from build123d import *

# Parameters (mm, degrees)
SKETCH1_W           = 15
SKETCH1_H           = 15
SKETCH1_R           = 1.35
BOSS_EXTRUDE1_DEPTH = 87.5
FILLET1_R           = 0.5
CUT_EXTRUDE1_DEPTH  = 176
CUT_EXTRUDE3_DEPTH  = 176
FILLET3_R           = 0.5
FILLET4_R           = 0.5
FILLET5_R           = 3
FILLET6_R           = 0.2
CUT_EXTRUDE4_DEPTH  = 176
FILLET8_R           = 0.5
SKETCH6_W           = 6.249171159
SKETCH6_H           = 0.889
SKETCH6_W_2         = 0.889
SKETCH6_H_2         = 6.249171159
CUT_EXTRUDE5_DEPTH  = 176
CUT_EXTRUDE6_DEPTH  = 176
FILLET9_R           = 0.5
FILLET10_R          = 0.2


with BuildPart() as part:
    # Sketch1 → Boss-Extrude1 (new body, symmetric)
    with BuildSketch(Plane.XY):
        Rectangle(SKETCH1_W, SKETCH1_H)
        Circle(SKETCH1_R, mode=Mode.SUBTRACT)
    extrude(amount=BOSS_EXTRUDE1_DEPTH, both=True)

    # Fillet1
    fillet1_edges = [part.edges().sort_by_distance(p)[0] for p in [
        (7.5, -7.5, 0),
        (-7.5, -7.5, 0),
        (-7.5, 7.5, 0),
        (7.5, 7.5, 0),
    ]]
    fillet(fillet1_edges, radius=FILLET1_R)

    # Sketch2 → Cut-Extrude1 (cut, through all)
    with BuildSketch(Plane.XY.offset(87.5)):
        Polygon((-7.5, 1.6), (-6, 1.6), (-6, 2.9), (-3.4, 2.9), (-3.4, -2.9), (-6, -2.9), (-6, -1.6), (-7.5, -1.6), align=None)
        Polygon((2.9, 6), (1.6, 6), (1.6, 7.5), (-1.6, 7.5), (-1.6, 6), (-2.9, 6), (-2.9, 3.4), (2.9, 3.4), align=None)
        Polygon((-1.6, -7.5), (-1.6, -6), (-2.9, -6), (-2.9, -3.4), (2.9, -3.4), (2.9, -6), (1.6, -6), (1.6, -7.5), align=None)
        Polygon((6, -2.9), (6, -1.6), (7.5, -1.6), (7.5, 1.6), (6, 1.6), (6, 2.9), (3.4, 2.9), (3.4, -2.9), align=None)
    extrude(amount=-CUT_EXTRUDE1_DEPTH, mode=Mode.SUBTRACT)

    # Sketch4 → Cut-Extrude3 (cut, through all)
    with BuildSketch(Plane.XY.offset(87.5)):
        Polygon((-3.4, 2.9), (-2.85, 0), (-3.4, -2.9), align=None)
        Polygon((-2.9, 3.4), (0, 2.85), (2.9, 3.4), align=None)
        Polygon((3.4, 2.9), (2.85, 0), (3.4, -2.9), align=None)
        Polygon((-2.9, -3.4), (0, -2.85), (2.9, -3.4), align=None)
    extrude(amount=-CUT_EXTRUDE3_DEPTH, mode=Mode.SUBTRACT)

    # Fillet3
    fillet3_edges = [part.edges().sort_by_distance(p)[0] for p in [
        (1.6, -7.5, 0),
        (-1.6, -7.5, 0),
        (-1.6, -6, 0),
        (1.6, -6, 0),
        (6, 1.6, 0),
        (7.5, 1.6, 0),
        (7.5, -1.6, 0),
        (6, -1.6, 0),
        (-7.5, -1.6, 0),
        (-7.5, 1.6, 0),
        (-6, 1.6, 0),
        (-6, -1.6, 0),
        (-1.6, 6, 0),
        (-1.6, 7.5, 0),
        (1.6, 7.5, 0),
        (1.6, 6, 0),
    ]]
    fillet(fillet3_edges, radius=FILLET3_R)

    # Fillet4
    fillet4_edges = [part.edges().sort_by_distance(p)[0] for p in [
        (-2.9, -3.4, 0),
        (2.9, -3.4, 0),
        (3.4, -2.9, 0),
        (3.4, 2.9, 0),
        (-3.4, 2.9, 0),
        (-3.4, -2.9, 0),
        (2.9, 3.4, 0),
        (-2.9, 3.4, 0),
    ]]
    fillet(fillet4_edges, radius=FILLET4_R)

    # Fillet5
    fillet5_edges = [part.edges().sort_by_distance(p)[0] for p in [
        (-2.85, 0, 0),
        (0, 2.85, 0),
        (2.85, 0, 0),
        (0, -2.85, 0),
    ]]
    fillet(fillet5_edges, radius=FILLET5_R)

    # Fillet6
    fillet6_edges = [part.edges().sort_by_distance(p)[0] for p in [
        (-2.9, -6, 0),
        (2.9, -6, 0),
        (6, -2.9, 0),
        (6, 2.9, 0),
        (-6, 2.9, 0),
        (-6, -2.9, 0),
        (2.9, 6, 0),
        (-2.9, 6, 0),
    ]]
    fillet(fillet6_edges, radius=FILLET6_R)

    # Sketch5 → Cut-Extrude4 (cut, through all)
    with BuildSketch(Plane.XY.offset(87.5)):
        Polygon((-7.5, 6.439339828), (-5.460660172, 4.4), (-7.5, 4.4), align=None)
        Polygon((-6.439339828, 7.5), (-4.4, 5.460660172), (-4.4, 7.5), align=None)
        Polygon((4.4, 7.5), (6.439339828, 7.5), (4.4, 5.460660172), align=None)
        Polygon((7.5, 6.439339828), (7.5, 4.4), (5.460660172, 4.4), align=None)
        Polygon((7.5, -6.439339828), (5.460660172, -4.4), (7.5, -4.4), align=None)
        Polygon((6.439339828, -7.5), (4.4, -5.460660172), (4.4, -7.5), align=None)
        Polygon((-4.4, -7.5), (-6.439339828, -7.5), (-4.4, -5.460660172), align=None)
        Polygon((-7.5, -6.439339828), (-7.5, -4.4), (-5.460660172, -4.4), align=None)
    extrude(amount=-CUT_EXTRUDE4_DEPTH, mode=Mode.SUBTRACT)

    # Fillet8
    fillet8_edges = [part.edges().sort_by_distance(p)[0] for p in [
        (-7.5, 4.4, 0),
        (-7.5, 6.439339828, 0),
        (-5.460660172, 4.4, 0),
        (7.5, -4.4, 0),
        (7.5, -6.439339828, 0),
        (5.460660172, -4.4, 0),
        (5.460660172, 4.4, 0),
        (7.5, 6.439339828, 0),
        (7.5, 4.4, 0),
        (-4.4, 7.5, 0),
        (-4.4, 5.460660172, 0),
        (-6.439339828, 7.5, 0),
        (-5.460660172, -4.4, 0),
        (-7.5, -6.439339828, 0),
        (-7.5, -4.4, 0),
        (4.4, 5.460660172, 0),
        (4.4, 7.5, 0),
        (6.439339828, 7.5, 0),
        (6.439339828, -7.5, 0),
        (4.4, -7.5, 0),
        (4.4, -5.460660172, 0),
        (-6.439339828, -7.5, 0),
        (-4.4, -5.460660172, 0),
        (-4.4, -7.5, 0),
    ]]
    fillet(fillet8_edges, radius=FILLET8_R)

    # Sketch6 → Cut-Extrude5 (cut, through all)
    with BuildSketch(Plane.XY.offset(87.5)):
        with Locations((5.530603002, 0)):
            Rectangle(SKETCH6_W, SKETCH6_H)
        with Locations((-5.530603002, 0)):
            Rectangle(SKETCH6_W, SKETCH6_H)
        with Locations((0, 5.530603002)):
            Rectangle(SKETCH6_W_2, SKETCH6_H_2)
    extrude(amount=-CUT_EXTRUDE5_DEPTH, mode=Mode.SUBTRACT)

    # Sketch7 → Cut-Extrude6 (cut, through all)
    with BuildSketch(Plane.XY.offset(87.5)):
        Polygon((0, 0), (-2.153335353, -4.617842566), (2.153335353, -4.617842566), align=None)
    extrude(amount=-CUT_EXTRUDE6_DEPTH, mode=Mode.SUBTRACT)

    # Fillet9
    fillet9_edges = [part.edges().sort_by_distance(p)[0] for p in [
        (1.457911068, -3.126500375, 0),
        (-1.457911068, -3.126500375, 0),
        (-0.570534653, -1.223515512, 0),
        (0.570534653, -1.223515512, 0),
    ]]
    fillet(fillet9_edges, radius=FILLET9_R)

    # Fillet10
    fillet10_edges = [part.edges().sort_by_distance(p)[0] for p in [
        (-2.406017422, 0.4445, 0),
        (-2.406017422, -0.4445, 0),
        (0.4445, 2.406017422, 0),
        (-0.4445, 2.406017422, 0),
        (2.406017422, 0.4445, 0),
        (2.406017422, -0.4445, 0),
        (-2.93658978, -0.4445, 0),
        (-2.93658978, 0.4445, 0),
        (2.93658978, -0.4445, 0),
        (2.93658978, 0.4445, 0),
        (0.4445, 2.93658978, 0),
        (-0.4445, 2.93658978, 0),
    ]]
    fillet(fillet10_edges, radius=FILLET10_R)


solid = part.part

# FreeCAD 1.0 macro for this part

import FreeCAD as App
import Part
import Sketcher
Q = App.Units.Quantity


def edges_at(feature, points):
    """Names of the edges that pass closest to the given points."""
    edges = feature.Shape.Edges
    near = lambda p: min(range(len(edges)), key=lambda i: edges[i].distToShape(Part.Vertex(*p))[0])
    return sorted({f"Edge{near(p) + 1}" for p in points})


def add_polygon(sketch, points):
    """Adds a closed chain of lines whose ends are joined by coincident constraints."""
    first, n = sketch.GeometryCount, len(points)
    for a, b in zip(points, points[1:] + points[:1]):
        sketch.addGeometry(Part.LineSegment(App.Vector(*a, 0), App.Vector(*b, 0)), False)
    for i in range(n):
        sketch.addConstraint(Sketcher.Constraint("Coincident", first + i, 2, first + (i + 1) % n, 1))

doc = App.newDocument("Part")
params = doc.addObject("Spreadsheet::Sheet", "Params")
for row, (alias, value) in enumerate([
    ("sketch1_diameter", "2.7 mm"),
    ("sketch1_width", "15 mm"),
    ("pad1_length", "175 mm"),
    ("fillet_radius", "0.5 mm"),
    ("sketch2_width", "1.5 mm"),
    ("sketch2_width2", "2.6 mm"),
    ("sketch2_width3", "1.3 mm"),
    ("sketch2_width4", "3.2 mm"),
    ("sketch3_width", "5.8 mm"),
    ("fillet2_radius", "0.5 mm"),
    ("fillet3_radius", "0.5 mm"),
    ("fillet4_radius", "3 mm"),
    ("fillet5_radius", "0.2 mm"),
    ("fillet6_radius", "0.5 mm"),
    ("fillet7_radius", "0.5 mm"),
    ("fillet8_radius", "0.2 mm"),
], start=1):
    params.set(f"A{row}", alias)
    params.set(f"B{row}", "=" + value)
    params.setAlias(f"B{row}", alias)

body = doc.addObject("PartDesign::Body", "Body")

sketch1 = doc.addObject("Sketcher::SketchObject", "Sketch")
body.addObject(sketch1)
sketch1.AttachmentSupport = (doc.XY_Plane, [""])
sketch1.MapMode = "FlatFace"
add_polygon(sketch1, [(-7.5, 7.5), (-7.5, -7.5), (7.5, -7.5), (7.5, 7.5)])
sketch1.addGeometry(Part.Circle(App.Vector(0, 0, 0), App.Vector(0, 0, 1), 1.4), False)
sketch1.addConstraint([
    Sketcher.Constraint("Vertical", 0),
    Sketcher.Constraint("Horizontal", 1),
    Sketcher.Constraint("Vertical", 2),
    Sketcher.Constraint("Horizontal", 3),
    Sketcher.Constraint("Coincident", 4, 3, -1, 1),
    Sketcher.Constraint("Symmetric", 0, 2, 2, 2, -1, 1),
    Sketcher.Constraint("Equal", 3, 0),
    Sketcher.Constraint("Diameter", 4, Q("2.7 mm")),
    Sketcher.Constraint("DistanceX", 1, 1, 1, 2, Q("15 mm")),
])
sketch1.setExpression("Constraints[11]", "Params.sketch1_diameter")
sketch1.setExpression("Constraints[12]", "Params.sketch1_width")
pad1 = doc.addObject("PartDesign::Pad", "Pad")
body.addObject(pad1)
pad1.Profile = sketch1
pad1.setExpression("Length", "Params.pad1_length")
pad1.Midplane = True
doc.recompute()

fillet = doc.addObject("PartDesign::Fillet", "Fillet")
body.addObject(fillet)
fillet.Base = (pad1, edges_at(pad1, [
    (7.5, -7.5, 0),
    (-7.5, -7.5, 0),
    (-7.5, 7.5, 0),
    (7.5, 7.5, 0),
]))
fillet.setExpression("Radius", "Params.fillet_radius")

sketch2 = doc.addObject("Sketcher::SketchObject", "Sketch001")
body.addObject(sketch2)
sketch2.AttachmentSupport = (doc.XY_Plane, [""])
sketch2.MapMode = "FlatFace"
sketch2.AttachmentOffset = App.Placement(App.Vector(0, 0, 87.5), App.Rotation())
add_polygon(sketch2, [(-6, 1.6), (-7.5, 1.6), (-7.5, -1.6), (-6, -1.6), (-6, -2.9), (-3.4, -2.9), (-3.4, 2.9), (-6, 2.9)])
add_polygon(sketch2, [(2.9, 6), (1.6, 6), (1.6, 7.5), (-1.6, 7.5), (-1.6, 6), (-2.9, 6), (-2.9, 3.4), (2.9, 3.4)])
add_polygon(sketch2, [(-1.6, -6), (-1.6, -7.5), (1.6, -7.5), (1.6, -6), (2.9, -6), (2.9, -3.4), (-2.9, -3.4), (-2.9, -6)])
add_polygon(sketch2, [(6, -2.9), (6, -1.6), (7.5, -1.6), (7.5, 1.6), (6, 1.6), (6, 2.9), (3.4, 2.9), (3.4, -2.9)])
sketch2.addConstraint([
    Sketcher.Constraint("Horizontal", 0),
    Sketcher.Constraint("Vertical", 1),
    Sketcher.Constraint("Horizontal", 2),
    Sketcher.Constraint("Vertical", 3),
    Sketcher.Constraint("Horizontal", 4),
    Sketcher.Constraint("Vertical", 5),
    Sketcher.Constraint("Horizontal", 6),
    Sketcher.Constraint("Vertical", 7),
    Sketcher.Constraint("Horizontal", 8),
    Sketcher.Constraint("Vertical", 9),
    Sketcher.Constraint("Horizontal", 10),
    Sketcher.Constraint("Vertical", 11),
    Sketcher.Constraint("Horizontal", 12),
    Sketcher.Constraint("Vertical", 13),
    Sketcher.Constraint("Horizontal", 14),
    Sketcher.Constraint("Vertical", 15),
    Sketcher.Constraint("Vertical", 16),
    Sketcher.Constraint("Horizontal", 17),
    Sketcher.Constraint("Vertical", 18),
    Sketcher.Constraint("Horizontal", 19),
    Sketcher.Constraint("Vertical", 20),
    Sketcher.Constraint("Horizontal", 21),
    Sketcher.Constraint("Vertical", 22),
    Sketcher.Constraint("Horizontal", 23),
    Sketcher.Constraint("Vertical", 24),
    Sketcher.Constraint("Horizontal", 25),
    Sketcher.Constraint("Vertical", 26),
    Sketcher.Constraint("Horizontal", 27),
    Sketcher.Constraint("Vertical", 28),
    Sketcher.Constraint("Horizontal", 29),
    Sketcher.Constraint("Vertical", 30),
    Sketcher.Constraint("Horizontal", 31),
    Sketcher.Constraint("Symmetric", 9, 2, 16, 2, -1, 1),
    Sketcher.Constraint("Symmetric", 11, 2, 18, 2, -1, 1),
    Sketcher.Constraint("Symmetric", 13, 2, 20, 2, -1, 1),
    Sketcher.Constraint("Symmetric", 15, 2, 22, 2, -1, 1),
    Sketcher.Constraint("Symmetric", 7, 2, 24, 2, -1, 1),
    Sketcher.Constraint("Symmetric", 1, 2, 26, 2, -1, 1),
    Sketcher.Constraint("Symmetric", 3, 2, 28, 2, -1, 1),
    Sketcher.Constraint("Symmetric", 5, 2, 30, 2, -1, 1),
    Sketcher.Constraint("Symmetric", 8, 2, 11, 2, -2),
    Sketcher.Constraint("Symmetric", 2, 2, 24, 2, -2),
    Sketcher.Constraint("Horizontal", 6, 2, 28, 2),
    Sketcher.Constraint("Vertical", 15, 2, 19, 2),
    Sketcher.Constraint("Equal", 17, 1),
    Sketcher.Constraint("Equal", 23, 3),
    Sketcher.Constraint("Equal", 27, 9),
    Sketcher.Constraint("Equal", 31, 13),
    Sketcher.Constraint("DistanceX", 0, 2, 0, 1, Q("1.5 mm")),
    Sketcher.Constraint("DistanceX", 4, 1, 4, 2, Q("2.6 mm")),
    Sketcher.Constraint("DistanceX", 8, 2, 8, 1, Q("1.3 mm")),
    Sketcher.Constraint("DistanceX", 10, 2, 10, 1, Q("3.2 mm")),
    Sketcher.Constraint("DistanceX", 2, 2, -1, 1, Q("6 mm")),
    Sketcher.Constraint("DistanceY", -1, 1, 8, 2, Q("6 mm")),
])
sketch2.setExpression("Constraints[80]", "Params.sketch2_width")
sketch2.setExpression("Constraints[81]", "Params.sketch2_width2")
sketch2.setExpression("Constraints[82]", "Params.sketch2_width3")
sketch2.setExpression("Constraints[83]", "Params.sketch2_width4")
pocket1 = doc.addObject("PartDesign::Pocket", "Pocket")
body.addObject(pocket1)
pocket1.Profile = sketch2
pocket1.Type = "ThroughAll"

sketch3 = doc.addObject("Sketcher::SketchObject", "Sketch002")
body.addObject(sketch3)
sketch3.AttachmentSupport = (doc.XY_Plane, [""])
sketch3.MapMode = "FlatFace"
sketch3.AttachmentOffset = App.Placement(App.Vector(0, 0, 87.5), App.Rotation())
add_polygon(sketch3, [(-2.9, 0), (-3.4, 2.9), (-3.4, -2.9)])
add_polygon(sketch3, [(-2.9, 3.4), (0, 2.9), (2.9, 3.4)])
add_polygon(sketch3, [(3.4, 2.9), (2.9, 0), (3.4, -2.9)])
add_polygon(sketch3, [(0, -2.9), (-2.9, -3.4), (2.9, -3.4)])
sketch3.addConstraint([
    Sketcher.Constraint("Vertical", 1),
    Sketcher.Constraint("Horizontal", 5),
    Sketcher.Constraint("Vertical", 8),
    Sketcher.Constraint("Horizontal", 10),
    Sketcher.Constraint("Symmetric", 2, 2, 6, 2, -1, 1),
    Sketcher.Constraint("Symmetric", 0, 2, 7, 2, -1, 1),
    Sketcher.Constraint("Symmetric", 4, 2, 9, 2, -1, 1),
    Sketcher.Constraint("Symmetric", 3, 2, 11, 2, -1, 1),
    Sketcher.Constraint("PointOnObject", 2, 2, -1),
    Sketcher.Constraint("PointOnObject", 3, 2, -2),
    Sketcher.Constraint("Perpendicular", 2, 3),
    Sketcher.Constraint("Perpendicular", 0, 4),
    Sketcher.Constraint("Perpendicular", 3, 6),
    Sketcher.Constraint("Perpendicular", 6, 11),
    Sketcher.Constraint("Horizontal", 1, 2, 7, 2),
    Sketcher.Constraint("Equal", 10, 1),
    Sketcher.Constraint("DistanceX", 5, 2, 5, 1, Q("5.8 mm")),
    Sketcher.Constraint("DistanceX", 0, 2, -1, 1, Q("3.4 mm")),
    Sketcher.Constraint("DistanceY", -1, 1, 4, 2, Q("3.4 mm")),
    Sketcher.Constraint("DistanceX", 2, 2, 6, 2, Q("5.7 mm")),
])
sketch3.setExpression("Constraints[28]", "Params.sketch3_width")
pocket2 = doc.addObject("PartDesign::Pocket", "Pocket001")
body.addObject(pocket2)
pocket2.Profile = sketch3
pocket2.Type = "ThroughAll"
doc.recompute()

fillet2 = doc.addObject("PartDesign::Fillet", "Fillet001")
body.addObject(fillet2)
fillet2.Base = (pocket2, edges_at(pocket2, [
    (1.6, -7.5, 0),
    (-1.6, -7.5, 0),
    (-1.6, -6, 0),
    (1.6, -6, 0),
    (6, 1.6, 0),
    (7.5, 1.6, 0),
    (7.5, -1.6, 0),
    (6, -1.6, 0),
    (-7.5, -1.6, 0),
    (-7.5, 1.6, 0),
    (-6, 1.6, 0),
    (-6, -1.6, 0),
    (-1.6, 6, 0),
    (-1.6, 7.5, 0),
    (1.6, 7.5, 0),
    (1.6, 6, 0),
]))
fillet2.setExpression("Radius", "Params.fillet2_radius")
doc.recompute()

fillet3 = doc.addObject("PartDesign::Fillet", "Fillet002")
body.addObject(fillet3)
fillet3.Base = (fillet2, edges_at(fillet2, [
    (-2.9, -3.4, 0),
    (2.9, -3.4, 0),
    (3.4, -2.9, 0),
    (3.4, 2.9, 0),
    (-3.4, 2.9, 0),
    (-3.4, -2.9, 0),
    (2.9, 3.4, 0),
    (-2.9, 3.4, 0),
]))
fillet3.setExpression("Radius", "Params.fillet3_radius")
doc.recompute()

fillet4 = doc.addObject("PartDesign::Fillet", "Fillet003")
body.addObject(fillet4)
fillet4.Base = (fillet3, edges_at(fillet3, [
    (-2.85, 0, 0),
    (0, 2.85, 0),
    (2.85, 0, 0),
    (0, -2.85, 0),
]))
fillet4.setExpression("Radius", "Params.fillet4_radius")
doc.recompute()

fillet5 = doc.addObject("PartDesign::Fillet", "Fillet004")
body.addObject(fillet5)
fillet5.Base = (fillet4, edges_at(fillet4, [
    (-2.9, -6, 0),
    (2.9, -6, 0),
    (6, -2.9, 0),
    (6, 2.9, 0),
    (-6, 2.9, 0),
    (-6, -2.9, 0),
    (2.9, 6, 0),
    (-2.9, 6, 0),
]))
fillet5.setExpression("Radius", "Params.fillet5_radius")

sketch4 = doc.addObject("Sketcher::SketchObject", "Sketch003")
body.addObject(sketch4)
sketch4.AttachmentSupport = (doc.XY_Plane, [""])
sketch4.MapMode = "FlatFace"
sketch4.AttachmentOffset = App.Placement(App.Vector(0, 0, 87.5), App.Rotation())
add_polygon(sketch4, [(-5.5, 4.4), (-7.5, 6.4), (-7.5, 4.4)])
add_polygon(sketch4, [(-6.4, 7.5), (-4.4, 5.5), (-4.4, 7.5)])
add_polygon(sketch4, [(6.4, 7.5), (4.4, 7.5), (4.4, 5.5)])
add_polygon(sketch4, [(7.5, 4.4), (7.5, 6.4), (5.5, 4.4)])
add_polygon(sketch4, [(5.5, -4.4), (7.5, -6.4), (7.5, -4.4)])
add_polygon(sketch4, [(6.4, -7.5), (4.4, -5.5), (4.4, -7.5)])
add_polygon(sketch4, [(-6.4, -7.5), (-4.4, -7.5), (-4.4, -5.5)])
add_polygon(sketch4, [(-7.5, -4.4), (-7.5, -6.4), (-5.5, -4.4)])
sketch4.addConstraint([
    Sketcher.Constraint("Vertical", 1),
    Sketcher.Constraint("Horizontal", 2),
    Sketcher.Constraint("Vertical", 4),
    Sketcher.Constraint("Horizontal", 5),
    Sketcher.Constraint("Horizontal", 6),
    Sketcher.Constraint("Vertical", 7),
    Sketcher.Constraint("Vertical", 9),
    Sketcher.Constraint("Horizontal", 11),
    Sketcher.Constraint("Vertical", 13),
    Sketcher.Constraint("Horizontal", 14),
    Sketcher.Constraint("Vertical", 16),
    Sketcher.Constraint("Horizontal", 17),
    Sketcher.Constraint("Horizontal", 18),
    Sketcher.Constraint("Vertical", 19),
    Sketcher.Constraint("Vertical", 21),
    Sketcher.Constraint("Horizontal", 23),
    Sketcher.Constraint("Symmetric", 0, 2, 12, 2, -1, 1),
    Sketcher.Constraint("Symmetric", 2, 2, 14, 2, -1, 1),
    Sketcher.Constraint("Symmetric", 3, 2, 15, 2, -1, 1),
    Sketcher.Constraint("Symmetric", 5, 2, 17, 2, -1, 1),
    Sketcher.Constraint("Symmetric", 6, 2, 18, 2, -1, 1),
    Sketcher.Constraint("Symmetric", 9, 2, 21, 2, -1, 1),
    Sketcher.Constraint("Symmetric", 10, 2, 22, 2, -1, 1),
    Sketcher.Constraint("Symmetric", 4, 2, 6, 2, -2),
    Sketcher.Constraint("Symmetric", 0, 2, 9, 2, -2),
    Sketcher.Constraint("Symmetric", 2, 2, 10, 2, -2),
    Sketcher.Constraint("Parallel", 0, 3),
    Sketcher.Constraint("Perpendicular", 3, 8),
    Sketcher.Constraint("Parallel", 8, 10),
    Sketcher.Constraint("Perpendicular", 15, 20),
    Sketcher.Constraint("Horizontal", 3, 2, 7, 2),
    Sketcher.Constraint("Horizontal", 15, 2, 19, 2),
    Sketcher.Constraint("Equal", 2, 5),
    Sketcher.Constraint("DistanceX", 0, 2, -1, 1, Q("7.5 mm")),
    Sketcher.Constraint("DistanceY", -1, 1, 1, 2, Q("4.4 mm")),
    Sketcher.Constraint("DistanceX", 3, 2, -1, 1, Q("4.4 mm")),
    Sketcher.Constraint("DistanceY", -1, 1, 4, 2, Q("7.5 mm")),
    Sketcher.Constraint("DistanceX", 2, 1, 2, 2, Q("2.03934 mm")),
])
pocket3 = doc.addObject("PartDesign::Pocket", "Pocket002")
body.addObject(pocket3)
pocket3.Profile = sketch4
pocket3.Type = "ThroughAll"
doc.recompute()

fillet6 = doc.addObject("PartDesign::Fillet", "Fillet005")
body.addObject(fillet6)
fillet6.Base = (pocket3, edges_at(pocket3, [
    (-7.5, 4.4, 0),
    (-7.5, 6.439, 0),
    (-5.461, 4.4, 0),
    (7.5, -4.4, 0),
    (7.5, -6.439, 0),
    (5.461, -4.4, 0),
    (5.461, 4.4, 0),
    (7.5, 6.439, 0),
    (7.5, 4.4, 0),
    (-4.4, 7.5, 0),
    (-4.4, 5.461, 0),
    (-6.439, 7.5, 0),
    (-5.461, -4.4, 0),
    (-7.5, -6.439, 0),
    (-7.5, -4.4, 0),
    (4.4, 5.461, 0),
    (4.4, 7.5, 0),
    (6.439, 7.5, 0),
    (6.439, -7.5, 0),
    (4.4, -7.5, 0),
    (4.4, -5.461, 0),
    (-6.439, -7.5, 0),
    (-4.4, -5.461, 0),
    (-4.4, -7.5, 0),
]))
fillet6.setExpression("Radius", "Params.fillet6_radius")

sketch5 = doc.addObject("Sketcher::SketchObject", "Sketch004")
body.addObject(sketch5)
sketch5.AttachmentSupport = (doc.XY_Plane, [""])
sketch5.MapMode = "FlatFace"
sketch5.AttachmentOffset = App.Placement(App.Vector(0, 0, 87.5), App.Rotation())
add_polygon(sketch5, [(2.4, 0.4), (2.4, -0.4), (8.7, -0.4), (8.7, 0.4)])
add_polygon(sketch5, [(-8.7, 0.4), (-8.7, -0.4), (-2.4, -0.4), (-2.4, 0.4)])
add_polygon(sketch5, [(-0.4, 8.7), (-0.4, 2.4), (0.4, 2.4), (0.4, 8.7)])
sketch5.addConstraint([
    Sketcher.Constraint("Vertical", 0),
    Sketcher.Constraint("Horizontal", 1),
    Sketcher.Constraint("Vertical", 2),
    Sketcher.Constraint("Horizontal", 3),
    Sketcher.Constraint("Vertical", 4),
    Sketcher.Constraint("Horizontal", 5),
    Sketcher.Constraint("Vertical", 6),
    Sketcher.Constraint("Horizontal", 7),
    Sketcher.Constraint("Vertical", 8),
    Sketcher.Constraint("Horizontal", 9),
    Sketcher.Constraint("Vertical", 10),
    Sketcher.Constraint("Horizontal", 11),
    Sketcher.Constraint("Symmetric", 2, 2, 4, 2, -1, 1),
    Sketcher.Constraint("Symmetric", 0, 2, 6, 2, -1, 1),
    Sketcher.Constraint("Horizontal", 1, 2, 4, 2),
    Sketcher.Constraint("Equal", 11, 0),
    Sketcher.Constraint("Equal", 7, 8),
    Sketcher.Constraint("DistanceX", 9, 1, 9, 2, Q("0.889 mm")),
    Sketcher.Constraint("DistanceX", 1, 1, 1, 2, Q("6.249171 mm")),
    Sketcher.Constraint("DistanceX", 8, 2, -1, 1, Q("0.4445 mm")),
    Sketcher.Constraint("DistanceX", -1, 1, 1, 2, Q("8.655189 mm")),
    Sketcher.Constraint("DistanceY", -1, 1, 10, 2, Q("8.655189 mm")),
])
pocket4 = doc.addObject("PartDesign::Pocket", "Pocket003")
body.addObject(pocket4)
pocket4.Profile = sketch5
pocket4.Type = "ThroughAll"

sketch6 = doc.addObject("Sketcher::SketchObject", "Sketch005")
body.addObject(sketch6)
sketch6.AttachmentSupport = (doc.XY_Plane, [""])
sketch6.MapMode = "FlatFace"
sketch6.AttachmentOffset = App.Placement(App.Vector(0, 0, 87.5), App.Rotation())
add_polygon(sketch6, [(0, 0), (-2.2, -4.6), (2.2, -4.6)])
sketch6.addConstraint([
    Sketcher.Constraint("Horizontal", 1),
    Sketcher.Constraint("Coincident", 2, 2, -1, 1),
    Sketcher.Constraint("Equal", 0, 2),
    Sketcher.Constraint("Angle", 0, Q("-115 deg")),
    Sketcher.Constraint("DistanceX", 1, 1, 1, 2, Q("4.306671 mm")),
])
pocket5 = doc.addObject("PartDesign::Pocket", "Pocket004")
body.addObject(pocket5)
pocket5.Profile = sketch6
pocket5.Type = "ThroughAll"
doc.recompute()

fillet7 = doc.addObject("PartDesign::Fillet", "Fillet006")
body.addObject(fillet7)
fillet7.Base = (pocket5, edges_at(pocket5, [
    (1.458, -3.127, 0),
    (-1.458, -3.127, 0),
    (-0.571, -1.224, 0),
    (0.571, -1.224, 0),
]))
fillet7.setExpression("Radius", "Params.fillet7_radius")
doc.recompute()

fillet8 = doc.addObject("PartDesign::Fillet", "Fillet007")
body.addObject(fillet8)
fillet8.Base = (fillet7, edges_at(fillet7, [
    (-2.406, 0.445, 0),
    (-2.406, -0.445, 0),
    (0.445, 2.406, 0),
    (-0.445, 2.406, 0),
    (2.406, 0.445, 0),
    (2.406, -0.445, 0),
    (-2.937, -0.445, 0),
    (-2.937, 0.445, 0),
    (2.937, -0.445, 0),
    (2.937, 0.445, 0),
    (0.445, 2.937, 0),
    (-0.445, 2.937, 0),
]))
fillet8.setExpression("Radius", "Params.fillet8_radius")

doc.recompute()
